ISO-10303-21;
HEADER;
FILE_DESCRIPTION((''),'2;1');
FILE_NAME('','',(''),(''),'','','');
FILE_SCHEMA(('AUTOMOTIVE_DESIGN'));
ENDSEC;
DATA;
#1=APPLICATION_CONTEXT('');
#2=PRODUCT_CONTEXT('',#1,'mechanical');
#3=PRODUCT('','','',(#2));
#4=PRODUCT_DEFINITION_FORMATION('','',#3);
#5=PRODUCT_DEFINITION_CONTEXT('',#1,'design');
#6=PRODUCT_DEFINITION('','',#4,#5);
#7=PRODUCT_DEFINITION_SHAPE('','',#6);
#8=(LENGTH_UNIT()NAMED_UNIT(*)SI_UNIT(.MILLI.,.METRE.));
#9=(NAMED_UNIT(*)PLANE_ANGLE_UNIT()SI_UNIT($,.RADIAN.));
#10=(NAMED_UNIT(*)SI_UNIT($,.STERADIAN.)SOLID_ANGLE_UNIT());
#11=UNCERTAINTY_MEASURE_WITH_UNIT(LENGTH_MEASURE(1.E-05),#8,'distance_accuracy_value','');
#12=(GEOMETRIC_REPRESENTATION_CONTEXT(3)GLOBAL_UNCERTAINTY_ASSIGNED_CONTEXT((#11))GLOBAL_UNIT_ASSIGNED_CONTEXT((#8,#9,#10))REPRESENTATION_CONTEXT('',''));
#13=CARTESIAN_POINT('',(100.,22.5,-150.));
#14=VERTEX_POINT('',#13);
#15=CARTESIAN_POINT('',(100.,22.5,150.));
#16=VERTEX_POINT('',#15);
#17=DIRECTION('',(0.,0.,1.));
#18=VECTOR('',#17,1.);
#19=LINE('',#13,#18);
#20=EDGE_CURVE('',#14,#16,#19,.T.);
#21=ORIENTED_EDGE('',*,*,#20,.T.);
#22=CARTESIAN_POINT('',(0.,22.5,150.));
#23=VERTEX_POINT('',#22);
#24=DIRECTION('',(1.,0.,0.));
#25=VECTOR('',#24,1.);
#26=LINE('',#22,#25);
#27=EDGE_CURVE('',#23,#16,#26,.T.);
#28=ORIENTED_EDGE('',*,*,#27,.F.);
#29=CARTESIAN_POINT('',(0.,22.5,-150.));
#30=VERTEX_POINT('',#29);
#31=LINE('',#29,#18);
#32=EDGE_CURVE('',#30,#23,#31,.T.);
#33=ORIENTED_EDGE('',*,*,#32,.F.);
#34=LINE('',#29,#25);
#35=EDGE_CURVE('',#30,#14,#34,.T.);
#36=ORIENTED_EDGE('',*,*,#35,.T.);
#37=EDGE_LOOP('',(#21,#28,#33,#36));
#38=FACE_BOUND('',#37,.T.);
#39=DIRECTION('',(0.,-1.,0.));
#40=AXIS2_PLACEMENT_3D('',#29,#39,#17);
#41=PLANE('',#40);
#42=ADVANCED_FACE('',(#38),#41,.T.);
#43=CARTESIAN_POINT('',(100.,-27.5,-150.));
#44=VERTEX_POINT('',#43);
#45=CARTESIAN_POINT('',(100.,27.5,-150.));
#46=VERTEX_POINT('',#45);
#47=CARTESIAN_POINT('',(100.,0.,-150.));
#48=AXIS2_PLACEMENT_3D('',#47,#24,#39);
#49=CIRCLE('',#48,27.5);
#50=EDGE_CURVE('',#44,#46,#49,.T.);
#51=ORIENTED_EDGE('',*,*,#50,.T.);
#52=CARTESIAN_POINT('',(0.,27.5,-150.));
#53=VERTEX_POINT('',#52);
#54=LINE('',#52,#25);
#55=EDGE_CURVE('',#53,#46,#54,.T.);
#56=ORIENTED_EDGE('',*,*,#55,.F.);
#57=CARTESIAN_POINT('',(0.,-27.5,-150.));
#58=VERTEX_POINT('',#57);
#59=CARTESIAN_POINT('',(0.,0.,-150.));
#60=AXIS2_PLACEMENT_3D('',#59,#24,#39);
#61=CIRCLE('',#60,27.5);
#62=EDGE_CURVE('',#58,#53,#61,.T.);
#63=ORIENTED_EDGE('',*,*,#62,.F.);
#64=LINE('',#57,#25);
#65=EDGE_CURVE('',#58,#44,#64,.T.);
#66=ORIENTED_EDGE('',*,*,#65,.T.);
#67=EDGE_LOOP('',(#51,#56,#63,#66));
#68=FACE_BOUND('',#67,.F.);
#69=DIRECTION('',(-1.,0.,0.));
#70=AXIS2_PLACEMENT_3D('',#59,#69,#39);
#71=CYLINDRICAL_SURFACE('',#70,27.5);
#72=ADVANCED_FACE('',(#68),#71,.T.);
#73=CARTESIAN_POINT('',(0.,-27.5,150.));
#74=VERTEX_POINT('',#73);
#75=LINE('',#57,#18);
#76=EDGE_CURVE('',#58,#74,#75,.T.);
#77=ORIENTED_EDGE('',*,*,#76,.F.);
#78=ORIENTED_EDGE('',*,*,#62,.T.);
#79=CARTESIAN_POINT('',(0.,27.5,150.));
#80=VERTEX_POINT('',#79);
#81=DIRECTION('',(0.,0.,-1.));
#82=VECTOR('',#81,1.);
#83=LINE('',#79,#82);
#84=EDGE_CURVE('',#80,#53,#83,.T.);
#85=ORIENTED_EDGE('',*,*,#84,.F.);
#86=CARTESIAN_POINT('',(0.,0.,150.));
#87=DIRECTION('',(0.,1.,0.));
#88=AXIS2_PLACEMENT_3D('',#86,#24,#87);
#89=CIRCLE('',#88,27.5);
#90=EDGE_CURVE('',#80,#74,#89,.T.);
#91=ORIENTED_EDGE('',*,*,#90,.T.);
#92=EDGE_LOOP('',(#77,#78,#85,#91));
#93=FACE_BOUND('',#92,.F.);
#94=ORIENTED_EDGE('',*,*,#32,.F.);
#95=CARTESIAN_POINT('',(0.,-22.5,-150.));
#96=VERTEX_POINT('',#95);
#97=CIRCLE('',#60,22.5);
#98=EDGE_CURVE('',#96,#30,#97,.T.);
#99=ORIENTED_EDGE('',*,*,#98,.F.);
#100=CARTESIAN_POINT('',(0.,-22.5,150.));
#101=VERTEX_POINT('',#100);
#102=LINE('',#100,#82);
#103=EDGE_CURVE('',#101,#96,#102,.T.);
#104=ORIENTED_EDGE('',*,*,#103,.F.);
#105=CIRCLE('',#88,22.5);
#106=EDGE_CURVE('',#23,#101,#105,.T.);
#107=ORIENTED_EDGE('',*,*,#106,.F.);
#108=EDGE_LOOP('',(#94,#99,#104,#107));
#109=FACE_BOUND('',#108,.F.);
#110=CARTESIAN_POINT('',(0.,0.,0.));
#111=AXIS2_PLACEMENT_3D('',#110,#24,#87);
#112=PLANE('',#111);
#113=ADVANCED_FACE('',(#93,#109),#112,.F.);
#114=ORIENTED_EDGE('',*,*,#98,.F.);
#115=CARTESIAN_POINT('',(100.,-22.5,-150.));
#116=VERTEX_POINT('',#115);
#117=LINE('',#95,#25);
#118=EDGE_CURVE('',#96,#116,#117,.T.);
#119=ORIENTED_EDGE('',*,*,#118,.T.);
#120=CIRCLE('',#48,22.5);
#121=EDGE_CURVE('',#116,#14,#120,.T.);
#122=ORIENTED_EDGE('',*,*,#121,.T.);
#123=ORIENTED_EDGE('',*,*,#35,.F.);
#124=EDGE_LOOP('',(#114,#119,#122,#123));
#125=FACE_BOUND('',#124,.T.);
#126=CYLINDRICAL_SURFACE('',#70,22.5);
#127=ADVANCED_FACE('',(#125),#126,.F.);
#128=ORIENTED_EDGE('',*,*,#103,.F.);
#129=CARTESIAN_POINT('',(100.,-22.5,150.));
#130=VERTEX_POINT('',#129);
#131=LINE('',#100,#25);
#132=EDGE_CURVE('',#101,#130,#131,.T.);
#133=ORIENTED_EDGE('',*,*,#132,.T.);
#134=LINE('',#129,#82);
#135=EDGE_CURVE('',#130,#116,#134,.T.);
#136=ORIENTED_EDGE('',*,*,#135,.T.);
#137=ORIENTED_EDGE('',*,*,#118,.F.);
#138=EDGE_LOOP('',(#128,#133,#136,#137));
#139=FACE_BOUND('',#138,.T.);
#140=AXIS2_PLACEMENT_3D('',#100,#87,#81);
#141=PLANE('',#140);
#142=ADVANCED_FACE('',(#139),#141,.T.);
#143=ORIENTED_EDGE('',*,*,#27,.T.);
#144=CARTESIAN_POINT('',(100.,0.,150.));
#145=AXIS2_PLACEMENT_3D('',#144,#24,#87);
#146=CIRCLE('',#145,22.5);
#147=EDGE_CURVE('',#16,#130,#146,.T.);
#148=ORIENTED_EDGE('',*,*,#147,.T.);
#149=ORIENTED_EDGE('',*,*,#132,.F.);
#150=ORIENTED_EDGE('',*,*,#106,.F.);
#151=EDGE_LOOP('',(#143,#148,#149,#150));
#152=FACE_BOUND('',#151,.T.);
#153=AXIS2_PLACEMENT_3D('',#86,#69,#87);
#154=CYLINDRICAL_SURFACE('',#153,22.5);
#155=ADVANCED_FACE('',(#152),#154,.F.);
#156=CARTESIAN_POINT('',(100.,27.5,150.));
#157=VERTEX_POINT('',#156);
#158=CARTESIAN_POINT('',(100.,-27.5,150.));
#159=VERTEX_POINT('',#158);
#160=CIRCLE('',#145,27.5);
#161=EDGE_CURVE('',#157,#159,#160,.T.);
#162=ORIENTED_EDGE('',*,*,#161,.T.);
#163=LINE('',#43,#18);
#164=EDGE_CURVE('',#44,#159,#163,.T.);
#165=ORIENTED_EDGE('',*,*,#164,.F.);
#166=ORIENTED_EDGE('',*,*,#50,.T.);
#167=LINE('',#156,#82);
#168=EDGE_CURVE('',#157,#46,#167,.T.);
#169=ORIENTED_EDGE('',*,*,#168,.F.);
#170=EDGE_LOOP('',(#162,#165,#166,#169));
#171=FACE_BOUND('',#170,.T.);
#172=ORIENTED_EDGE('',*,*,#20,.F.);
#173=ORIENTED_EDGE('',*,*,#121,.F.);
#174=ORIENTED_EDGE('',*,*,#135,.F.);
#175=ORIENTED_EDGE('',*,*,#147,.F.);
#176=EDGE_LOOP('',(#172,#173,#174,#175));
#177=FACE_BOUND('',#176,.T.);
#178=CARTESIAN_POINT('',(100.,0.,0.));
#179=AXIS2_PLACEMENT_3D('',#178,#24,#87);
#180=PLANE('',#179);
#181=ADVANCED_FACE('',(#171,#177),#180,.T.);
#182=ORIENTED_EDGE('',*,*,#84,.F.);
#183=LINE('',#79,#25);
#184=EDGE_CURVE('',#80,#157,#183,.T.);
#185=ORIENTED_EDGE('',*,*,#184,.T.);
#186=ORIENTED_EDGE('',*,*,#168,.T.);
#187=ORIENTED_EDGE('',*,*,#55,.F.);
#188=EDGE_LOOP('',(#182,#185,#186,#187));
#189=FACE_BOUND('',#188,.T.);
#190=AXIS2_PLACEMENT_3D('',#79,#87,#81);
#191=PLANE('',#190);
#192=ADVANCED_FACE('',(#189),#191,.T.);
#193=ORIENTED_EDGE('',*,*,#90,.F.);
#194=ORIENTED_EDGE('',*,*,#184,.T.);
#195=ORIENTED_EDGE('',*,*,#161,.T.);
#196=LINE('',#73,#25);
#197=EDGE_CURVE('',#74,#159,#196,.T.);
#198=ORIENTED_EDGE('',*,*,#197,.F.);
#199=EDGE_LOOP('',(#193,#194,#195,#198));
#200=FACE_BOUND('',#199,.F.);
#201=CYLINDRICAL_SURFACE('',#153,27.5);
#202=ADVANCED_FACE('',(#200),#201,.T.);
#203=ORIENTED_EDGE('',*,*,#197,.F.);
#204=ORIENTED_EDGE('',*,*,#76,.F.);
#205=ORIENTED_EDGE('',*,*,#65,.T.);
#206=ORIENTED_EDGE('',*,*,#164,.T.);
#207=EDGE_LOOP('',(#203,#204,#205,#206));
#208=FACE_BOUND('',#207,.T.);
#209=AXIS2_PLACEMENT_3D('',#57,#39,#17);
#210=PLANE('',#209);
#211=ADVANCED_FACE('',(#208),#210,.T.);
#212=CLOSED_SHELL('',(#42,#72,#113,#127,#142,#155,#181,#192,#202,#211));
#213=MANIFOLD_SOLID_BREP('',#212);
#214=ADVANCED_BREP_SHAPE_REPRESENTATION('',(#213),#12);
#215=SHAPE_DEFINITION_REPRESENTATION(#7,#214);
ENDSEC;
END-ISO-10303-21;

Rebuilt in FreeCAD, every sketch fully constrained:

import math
import FreeCAD as App
import Part
import Sketcher
from FreeCAD import Vector

doc = App.newDocument("Part")
params = doc.addObject("Spreadsheet::Sheet", "Params")
for row, (alias, value) in enumerate([
    ("sketch1_radius", "22.5 mm"),
    ("pad1_length", "100 mm"),
], start=1):
    params.set(f"A{row}", alias)
    params.set(f"B{row}", "=" + value)
    params.setAlias(f"B{row}", alias)

body = doc.addObject("PartDesign::Body", "Body")

sketch1 = body.newObject("Sketcher::SketchObject", "Sketch")
sketch1.AttachmentSupport = (doc.getObject("YZ_Plane"), [""])
sketch1.MapMode = "FlatFace"
sketch1.addGeometry(Part.LineSegment(Vector(28, -150, 0), Vector(28, 150, 0)), False)
sketch1.addGeometry(Part.ArcOfCircle(Part.Circle(Vector(0, 150, 0), Vector(0, 0, 1), 28), math.radians(0), math.radians(180)), False)
sketch1.addGeometry(Part.LineSegment(Vector(-28, 150, 0), Vector(-28, -150, 0)), False)
sketch1.addGeometry(Part.ArcOfCircle(Part.Circle(Vector(0, -150, 0), Vector(0, 0, 1), 28), math.radians(180), math.radians(360)), False)
sketch1.addGeometry(Part.LineSegment(Vector(-22, -150, 0), Vector(-22, 150, 0)), False)
sketch1.addGeometry(Part.ArcOfCircle(Part.Circle(Vector(0, 150, 0), Vector(0, 0, 1), 22), math.radians(0), math.radians(180)), False)
sketch1.addGeometry(Part.LineSegment(Vector(22, 150, 0), Vector(22, -150, 0)), False)
sketch1.addGeometry(Part.ArcOfCircle(Part.Circle(Vector(0, -150, 0), Vector(0, 0, 1), 22), math.radians(180), math.radians(360)), False)
sketch1.addConstraint(Sketcher.Constraint("Tangent", 0, 2, 1, 1))
sketch1.addConstraint(Sketcher.Constraint("Tangent", 1, 2, 2, 1))
sketch1.addConstraint(Sketcher.Constraint("Tangent", 2, 2, 3, 1))
sketch1.addConstraint(Sketcher.Constraint("Tangent", 3, 2, 0, 1))
sketch1.addConstraint(Sketcher.Constraint("Tangent", 4, 2, 5, 2))
sketch1.addConstraint(Sketcher.Constraint("Tangent", 5, 1, 6, 1))
sketch1.addConstraint(Sketcher.Constraint("Tangent", 6, 2, 7, 2))
sketch1.addConstraint(Sketcher.Constraint("Tangent", 7, 1, 4, 1))
sketch1.addConstraint(Sketcher.Constraint("Vertical", 0))
sketch1.addConstraint(Sketcher.Constraint("Vertical", 2))
sketch1.addConstraint(Sketcher.Constraint("Vertical", 4))
sketch1.addConstraint(Sketcher.Constraint("Vertical", 6))
sketch1.addConstraint(Sketcher.Constraint("Coincident", 5, 3, 1, 3))
sketch1.addConstraint(Sketcher.Constraint("Symmetric", 1, 3, 3, 3, -1, 1))
sketch1.addConstraint(Sketcher.Constraint("Horizontal", 7, 3, 2, 2))
sketch1.addConstraint(Sketcher.Constraint("Radius", 5, 22.5))
sketch1.addConstraint(Sketcher.Constraint("DistanceY", -1, 1, 1, 3, 150.0))
sketch1.addConstraint(Sketcher.Constraint("DistanceX", 1, 2, 4, 2, 5.0))
sketch1.setExpression("Constraints[15]", "Params.sketch1_radius")
pad1 = body.newObject("PartDesign::Pad", "Pad")
pad1.Profile = sketch1
pad1.setExpression("Length", "Params.pad1_length")

doc.recompute()
